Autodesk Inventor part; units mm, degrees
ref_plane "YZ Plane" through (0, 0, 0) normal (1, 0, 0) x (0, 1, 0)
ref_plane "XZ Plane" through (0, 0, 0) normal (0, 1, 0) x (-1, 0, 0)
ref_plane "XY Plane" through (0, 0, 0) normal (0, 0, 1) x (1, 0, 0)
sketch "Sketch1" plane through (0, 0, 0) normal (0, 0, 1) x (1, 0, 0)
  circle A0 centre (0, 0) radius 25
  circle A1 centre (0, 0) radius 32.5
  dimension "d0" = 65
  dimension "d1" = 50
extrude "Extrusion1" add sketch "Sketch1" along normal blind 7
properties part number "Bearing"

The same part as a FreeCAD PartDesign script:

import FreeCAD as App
import Part
import Sketcher

doc = App.newDocument("Part")
params = doc.addObject("Spreadsheet::Sheet", "Params")
for row, (alias, value) in enumerate([
    ("sketch1_diameter", "65 mm"),
    ("sketch1_diameter2", "50 mm"),
    ("pad1_length", "7 mm"),
], start=1):
    params.set(f"A{row}", alias)
    params.set(f"B{row}", "=" + value)
    params.setAlias(f"B{row}", alias)

body = doc.addObject("PartDesign::Body", "Body")

# Sketch on XY plane
sketch1 = doc.addObject("Sketcher::SketchObject", "Sketch")
body.addObject(sketch1)
sketch1.AttachmentSupport = (doc.XY_Plane, [""])
sketch1.MapMode = "FlatFace"
sketch1.addGeometry(Part.Circle(App.Vector(0, 0, 0), App.Vector(0, 0, 1), 32), False)
sketch1.addGeometry(Part.Circle(App.Vector(0, 0, 0), App.Vector(0, 0, 1), 25), False)
sketch1.addConstraint(Sketcher.Constraint("Coincident", 0, 3, -1, 1))
sketch1.addConstraint(Sketcher.Constraint("Coincident", 1, 3, -1, 1))
sketch1.addConstraint(Sketcher.Constraint("Diameter", 0, 65.0))
sketch1.addConstraint(Sketcher.Constraint("Diameter", 1, 50.0))
sketch1.setExpression("Constraints[2]", "Params.sketch1_diameter")
sketch1.setExpression("Constraints[3]", "Params.sketch1_diameter2")
pad1 = doc.addObject("PartDesign::Pad", "Pad")
body.addObject(pad1)
pad1.Profile = sketch1
pad1.setExpression("Length", "Params.pad1_length")

doc.recompute()
